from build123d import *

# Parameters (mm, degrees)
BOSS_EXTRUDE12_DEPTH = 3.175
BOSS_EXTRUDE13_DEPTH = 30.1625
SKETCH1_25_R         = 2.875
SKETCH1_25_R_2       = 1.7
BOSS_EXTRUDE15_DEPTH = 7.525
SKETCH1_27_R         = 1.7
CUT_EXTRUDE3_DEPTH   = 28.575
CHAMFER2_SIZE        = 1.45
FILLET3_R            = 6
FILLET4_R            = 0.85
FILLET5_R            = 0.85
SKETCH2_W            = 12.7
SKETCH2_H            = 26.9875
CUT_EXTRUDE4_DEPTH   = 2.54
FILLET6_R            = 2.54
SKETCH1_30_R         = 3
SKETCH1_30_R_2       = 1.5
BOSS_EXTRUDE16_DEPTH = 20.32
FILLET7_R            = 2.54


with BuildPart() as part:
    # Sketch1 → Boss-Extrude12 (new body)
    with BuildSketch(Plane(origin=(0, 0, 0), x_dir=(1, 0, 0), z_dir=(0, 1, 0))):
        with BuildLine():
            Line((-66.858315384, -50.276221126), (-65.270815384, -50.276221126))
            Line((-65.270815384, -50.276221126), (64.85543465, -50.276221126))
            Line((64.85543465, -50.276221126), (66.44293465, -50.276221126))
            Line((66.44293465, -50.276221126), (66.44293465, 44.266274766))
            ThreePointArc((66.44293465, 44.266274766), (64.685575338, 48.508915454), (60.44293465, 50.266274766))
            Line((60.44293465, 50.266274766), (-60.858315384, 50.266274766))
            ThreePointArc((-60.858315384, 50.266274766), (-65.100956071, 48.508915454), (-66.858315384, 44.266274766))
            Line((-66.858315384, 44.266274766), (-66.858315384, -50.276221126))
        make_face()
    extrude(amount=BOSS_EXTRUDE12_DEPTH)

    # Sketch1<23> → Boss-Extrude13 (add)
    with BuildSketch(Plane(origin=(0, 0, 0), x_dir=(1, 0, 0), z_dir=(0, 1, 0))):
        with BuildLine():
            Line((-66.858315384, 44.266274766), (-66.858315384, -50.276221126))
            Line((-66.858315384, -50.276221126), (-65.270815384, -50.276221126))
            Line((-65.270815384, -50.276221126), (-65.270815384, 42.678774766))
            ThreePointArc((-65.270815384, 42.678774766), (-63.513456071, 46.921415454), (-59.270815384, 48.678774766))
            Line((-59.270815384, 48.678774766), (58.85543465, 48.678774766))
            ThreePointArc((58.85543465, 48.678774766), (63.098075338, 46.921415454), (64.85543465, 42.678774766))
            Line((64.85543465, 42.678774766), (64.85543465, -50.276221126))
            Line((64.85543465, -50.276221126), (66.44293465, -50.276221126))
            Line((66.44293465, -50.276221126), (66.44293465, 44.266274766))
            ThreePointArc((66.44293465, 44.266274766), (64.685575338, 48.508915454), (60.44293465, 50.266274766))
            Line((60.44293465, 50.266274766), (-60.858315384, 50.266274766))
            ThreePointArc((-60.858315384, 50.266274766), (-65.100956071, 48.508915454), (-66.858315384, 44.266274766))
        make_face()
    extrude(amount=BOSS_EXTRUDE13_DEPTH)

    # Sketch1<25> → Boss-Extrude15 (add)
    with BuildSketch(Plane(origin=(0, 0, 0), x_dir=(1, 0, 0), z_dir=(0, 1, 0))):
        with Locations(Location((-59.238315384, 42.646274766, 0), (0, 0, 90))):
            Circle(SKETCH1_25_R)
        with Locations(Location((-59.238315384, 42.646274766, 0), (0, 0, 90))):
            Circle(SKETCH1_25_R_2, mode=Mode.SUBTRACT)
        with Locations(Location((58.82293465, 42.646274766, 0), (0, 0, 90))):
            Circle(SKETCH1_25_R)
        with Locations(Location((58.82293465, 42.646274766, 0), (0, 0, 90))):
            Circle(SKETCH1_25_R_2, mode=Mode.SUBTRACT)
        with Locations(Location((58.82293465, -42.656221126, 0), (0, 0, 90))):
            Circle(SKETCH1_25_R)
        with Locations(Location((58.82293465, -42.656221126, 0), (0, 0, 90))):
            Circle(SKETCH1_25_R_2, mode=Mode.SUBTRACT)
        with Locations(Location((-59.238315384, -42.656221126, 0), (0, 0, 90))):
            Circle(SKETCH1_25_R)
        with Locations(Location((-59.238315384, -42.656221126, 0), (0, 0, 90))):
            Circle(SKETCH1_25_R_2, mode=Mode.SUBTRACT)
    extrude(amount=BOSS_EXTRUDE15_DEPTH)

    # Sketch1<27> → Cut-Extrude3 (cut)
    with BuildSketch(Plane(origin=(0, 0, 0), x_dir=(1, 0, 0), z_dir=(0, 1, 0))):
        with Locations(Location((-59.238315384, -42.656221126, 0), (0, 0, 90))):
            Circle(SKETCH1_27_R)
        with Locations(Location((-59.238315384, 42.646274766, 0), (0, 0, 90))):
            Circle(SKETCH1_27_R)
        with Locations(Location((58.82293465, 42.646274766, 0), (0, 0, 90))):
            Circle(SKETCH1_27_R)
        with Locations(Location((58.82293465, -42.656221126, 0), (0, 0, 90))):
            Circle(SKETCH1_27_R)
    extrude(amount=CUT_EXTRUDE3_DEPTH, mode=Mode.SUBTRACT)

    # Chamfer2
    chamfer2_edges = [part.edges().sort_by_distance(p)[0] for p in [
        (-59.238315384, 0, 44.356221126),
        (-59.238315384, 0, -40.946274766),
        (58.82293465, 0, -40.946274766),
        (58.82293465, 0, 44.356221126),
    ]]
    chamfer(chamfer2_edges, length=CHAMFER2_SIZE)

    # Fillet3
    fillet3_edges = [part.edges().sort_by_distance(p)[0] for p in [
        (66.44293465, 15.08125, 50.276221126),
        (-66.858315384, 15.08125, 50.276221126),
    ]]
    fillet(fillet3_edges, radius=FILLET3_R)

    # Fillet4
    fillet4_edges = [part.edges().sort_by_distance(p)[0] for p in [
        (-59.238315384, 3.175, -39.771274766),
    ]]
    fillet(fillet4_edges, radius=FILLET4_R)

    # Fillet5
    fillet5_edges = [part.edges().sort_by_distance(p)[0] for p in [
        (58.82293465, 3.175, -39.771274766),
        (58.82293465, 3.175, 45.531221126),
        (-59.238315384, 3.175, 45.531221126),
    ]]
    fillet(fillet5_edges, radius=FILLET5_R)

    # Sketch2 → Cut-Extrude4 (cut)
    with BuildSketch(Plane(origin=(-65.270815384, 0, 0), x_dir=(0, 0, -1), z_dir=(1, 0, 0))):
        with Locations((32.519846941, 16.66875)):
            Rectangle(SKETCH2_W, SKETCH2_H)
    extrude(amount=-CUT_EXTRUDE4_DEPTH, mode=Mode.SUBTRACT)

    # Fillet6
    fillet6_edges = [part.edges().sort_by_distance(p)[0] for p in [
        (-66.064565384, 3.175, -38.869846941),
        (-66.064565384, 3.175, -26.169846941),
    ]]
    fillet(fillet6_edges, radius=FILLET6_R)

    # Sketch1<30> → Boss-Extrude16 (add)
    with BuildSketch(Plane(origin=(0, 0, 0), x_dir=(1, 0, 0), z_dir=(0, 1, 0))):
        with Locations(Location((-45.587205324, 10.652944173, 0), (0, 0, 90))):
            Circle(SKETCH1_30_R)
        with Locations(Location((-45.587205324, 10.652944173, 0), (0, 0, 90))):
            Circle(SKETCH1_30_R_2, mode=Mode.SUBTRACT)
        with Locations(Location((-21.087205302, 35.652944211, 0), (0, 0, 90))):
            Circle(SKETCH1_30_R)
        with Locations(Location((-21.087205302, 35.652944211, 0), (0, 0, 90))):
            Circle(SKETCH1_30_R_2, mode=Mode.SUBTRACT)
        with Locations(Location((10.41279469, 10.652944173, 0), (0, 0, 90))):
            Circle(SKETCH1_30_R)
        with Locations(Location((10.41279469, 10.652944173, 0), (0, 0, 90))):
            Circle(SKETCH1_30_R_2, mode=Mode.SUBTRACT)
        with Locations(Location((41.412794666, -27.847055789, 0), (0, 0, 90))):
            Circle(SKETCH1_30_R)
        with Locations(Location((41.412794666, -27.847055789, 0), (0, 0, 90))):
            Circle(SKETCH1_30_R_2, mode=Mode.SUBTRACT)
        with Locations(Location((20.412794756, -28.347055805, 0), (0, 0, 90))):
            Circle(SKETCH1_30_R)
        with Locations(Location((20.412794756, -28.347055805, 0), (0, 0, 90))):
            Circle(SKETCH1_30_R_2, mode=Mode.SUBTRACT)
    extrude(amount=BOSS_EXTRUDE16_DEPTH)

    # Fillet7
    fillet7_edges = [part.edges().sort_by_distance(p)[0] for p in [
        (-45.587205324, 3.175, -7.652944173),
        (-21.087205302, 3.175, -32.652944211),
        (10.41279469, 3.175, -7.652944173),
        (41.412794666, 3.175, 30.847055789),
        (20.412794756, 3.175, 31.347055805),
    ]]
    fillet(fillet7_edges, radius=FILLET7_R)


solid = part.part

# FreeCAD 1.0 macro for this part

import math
import FreeCAD as App
import Part
import Sketcher
Q = App.Units.Quantity


def edges_at(feature, points):
    """Names of the edges that pass closest to the given points."""
    edges = feature.Shape.Edges
    near = lambda p: min(range(len(edges)), key=lambda i: edges[i].distToShape(Part.Vertex(*p))[0])
    return sorted({f"Edge{near(p) + 1}" for p in points})

doc = App.newDocument("Part")
body = doc.addObject("PartDesign::Body", "Body")

sketch1 = body.newObject("Sketcher::SketchObject", "Sketch")
sketch1.AttachmentSupport = (doc.getObject("XZ_Plane"), [""])
sketch1.MapMode = "FlatFace"
sketch1.addGeometry([
    Part.LineSegment(App.Vector(-67, 50, 0), App.Vector(66, 50, 0)),
    Part.LineSegment(App.Vector(66, 50, 0), App.Vector(66, -44, 0)),
    Part.ArcOfCircle(Part.Circle(App.Vector(60, -44, 0), App.Vector(0, 0, 1), 6), math.radians(-90), math.radians(0)),
    Part.LineSegment(App.Vector(60, -50, 0), App.Vector(-61, -50, 0)),
    Part.ArcOfCircle(Part.Circle(App.Vector(-61, -44, 0), App.Vector(0, 0, 1), 6), math.radians(180), math.radians(270)),
    Part.LineSegment(App.Vector(-67, -44, 0), App.Vector(-67, 50, 0)),
], False)
sketch1.addConstraint([
    Sketcher.Constraint("Coincident", 0, 2, 1, 1),
    Sketcher.Constraint("Tangent", 1, 2, 2, 2),
    Sketcher.Constraint("Tangent", 2, 1, 3, 1),
    Sketcher.Constraint("Tangent", 3, 2, 4, 2),
    Sketcher.Constraint("Tangent", 4, 1, 5, 1),
    Sketcher.Constraint("Coincident", 5, 2, 0, 1),
    Sketcher.Constraint("Horizontal", 0),
    Sketcher.Constraint("Vertical", 1),
    Sketcher.Constraint("Horizontal", 3),
    Sketcher.Constraint("Vertical", 5),
    Sketcher.Constraint("Equal", 2, 4),
    Sketcher.Constraint("Radius", 2, Q("6 mm")),
    Sketcher.Constraint("DistanceX", 0, 1, 0, 2, Q("133.30125 mm")),
    Sketcher.Constraint("DistanceY", 1, 2, 1, 1, Q("94.542496 mm")),
    Sketcher.Constraint("DistanceY", -1, 1, 0, 2, Q("50.276221 mm")),
    Sketcher.Constraint("DistanceX", -1, 1, 2, 3, Q("60.442935 mm")),
])
pad1 = body.newObject("PartDesign::Pad", "Pad")
pad1.Profile = sketch1
pad1.Length = Q("0.125 in")
pad1.Reversed = True

sketch2 = body.newObject("Sketcher::SketchObject", "Sketch001")
sketch2.AttachmentSupport = (doc.getObject("XZ_Plane"), [""])
sketch2.MapMode = "FlatFace"
sketch2.addGeometry([
    Part.LineSegment(App.Vector(-66.9, -44.3, 0), App.Vector(-66.9, 50.3, 0)),
    Part.LineSegment(App.Vector(-66.9, 50.3, 0), App.Vector(-65.3, 50.3, 0)),
    Part.LineSegment(App.Vector(-65.3, 50.3, 0), App.Vector(-65.3, -42.7, 0)),
    Part.ArcOfCircle(Part.Circle(App.Vector(-59.3, -42.7, 0), App.Vector(0, 0, 1), 6), math.radians(180), math.radians(270)),
    Part.LineSegment(App.Vector(-59.3, -48.7, 0), App.Vector(58.9, -48.7, 0)),
    Part.ArcOfCircle(Part.Circle(App.Vector(58.9, -42.7, 0), App.Vector(0, 0, 1), 6), math.radians(-90), math.radians(0)),
    Part.LineSegment(App.Vector(64.9, -42.7, 0), App.Vector(64.9, 50.3, 0)),
    Part.LineSegment(App.Vector(64.9, 50.3, 0), App.Vector(66.4, 50.3, 0)),
    Part.LineSegment(App.Vector(66.4, 50.3, 0), App.Vector(66.4, -44.3, 0)),
    Part.ArcOfCircle(Part.Circle(App.Vector(60.4, -44.3, 0), App.Vector(0, 0, 1), 6), math.radians(-90), math.radians(0)),
    Part.LineSegment(App.Vector(60.4, -50.3, 0), App.Vector(-60.9, -50.3, 0)),
    Part.ArcOfCircle(Part.Circle(App.Vector(-60.9, -44.3, 0), App.Vector(0, 0, 1), 6), math.radians(180), math.radians(270)),
], False)
sketch2.addConstraint([
    Sketcher.Constraint("Coincident", 0, 2, 1, 1),
    Sketcher.Constraint("Coincident", 1, 2, 2, 1),
    Sketcher.Constraint("Tangent", 2, 2, 3, 1),
    Sketcher.Constraint("Tangent", 3, 2, 4, 1),
    Sketcher.Constraint("Tangent", 4, 2, 5, 1),
    Sketcher.Constraint("Tangent", 5, 2, 6, 1),
    Sketcher.Constraint("Coincident", 6, 2, 7, 1),
    Sketcher.Constraint("Coincident", 7, 2, 8, 1),
    Sketcher.Constraint("Tangent", 8, 2, 9, 2),
    Sketcher.Constraint("Tangent", 9, 1, 10, 1),
    Sketcher.Constraint("Tangent", 10, 2, 11, 2),
    Sketcher.Constraint("Tangent", 11, 1, 0, 1),
    Sketcher.Constraint("Vertical", 0),
    Sketcher.Constraint("Horizontal", 1),
    Sketcher.Constraint("Vertical", 2),
    Sketcher.Constraint("Horizontal", 4),
    Sketcher.Constraint("Vertical", 6),
    Sketcher.Constraint("Horizontal", 7),
    Sketcher.Constraint("Vertical", 8),
    Sketcher.Constraint("Horizontal", 10),
    Sketcher.Constraint("Equal", 3, 5),
    Sketcher.Constraint("Equal", 5, 9),
    Sketcher.Constraint("Equal", 9, 11),
    Sketcher.Constraint("Horizontal", 1, 2, 6, 2),
    Sketcher.Constraint("Equal", 1, 7),
    Sketcher.Constraint("DistanceX", 1, 1, 1, 2, Q("0.0625 in")),
    Sketcher.Constraint("Radius", 3, Q("6 mm")),
    Sketcher.Constraint("DistanceY", 9, 3, 5, 3, Q("0.0625 in")),
    Sketcher.Constraint("DistanceX", 4, 1, 4, 2, Q("118.12625 mm")),
    Sketcher.Constraint("DistanceY", 0, 1, 0, 2, Q("94.542496 mm")),
    Sketcher.Constraint("DistanceY", -1, 1, 0, 2, Q("50.276221 mm")),
    Sketcher.Constraint("DistanceX", 3, 3, -1, 1, Q("59.270815 mm")),
])
pad2 = body.newObject("PartDesign::Pad", "Pad001")
pad2.Profile = sketch2
pad2.Length = Q("1.1875 in")
pad2.Reversed = True

sketch3 = body.newObject("Sketcher::SketchObject", "Sketch002")
sketch3.AttachmentSupport = (doc.getObject("XZ_Plane"), [""])
sketch3.MapMode = "FlatFace"
sketch3.addGeometry([
    Part.Circle(App.Vector(-59.2, -42.6, 0), App.Vector(0, 0, 1), 2.9),
    Part.Circle(App.Vector(-59.2, -42.6, 0), App.Vector(0, 0, 1), 1.7),
    Part.Circle(App.Vector(58.8, -42.6, 0), App.Vector(0, 0, 1), 2.9),
    Part.Circle(App.Vector(58.8, -42.6, 0), App.Vector(0, 0, 1), 1.7),
    Part.Circle(App.Vector(58.8, 42.7, 0), App.Vector(0, 0, 1), 2.9),
    Part.Circle(App.Vector(58.8, 42.7, 0), App.Vector(0, 0, 1), 1.7),
    Part.Circle(App.Vector(-59.2, 42.7, 0), App.Vector(0, 0, 1), 2.9),
    Part.Circle(App.Vector(-59.2, 42.7, 0), App.Vector(0, 0, 1), 1.7),
], False)
sketch3.addConstraint([
    Sketcher.Constraint("Coincident", 1, 3, 0, 3),
    Sketcher.Constraint("Coincident", 3, 3, 2, 3),
    Sketcher.Constraint("Coincident", 5, 3, 4, 3),
    Sketcher.Constraint("Coincident", 7, 3, 6, 3),
    Sketcher.Constraint("Equal", 0, 2),
    Sketcher.Constraint("Equal", 1, 3),
    Sketcher.Constraint("Equal", 2, 4),
    Sketcher.Constraint("Equal", 3, 5),
    Sketcher.Constraint("Equal", 4, 6),
    Sketcher.Constraint("Equal", 5, 7),
    Sketcher.Constraint("Horizontal", 1, 3, 2, 3),
    Sketcher.Constraint("Horizontal", 5, 3, 6, 3),
    Sketcher.Constraint("Vertical", 3, 3, 4, 3),
    Sketcher.Constraint("Vertical", 1, 3, 6, 3),
    Sketcher.Constraint("Diameter", 0, Q("5.75 mm")),
    Sketcher.Constraint("Diameter", 1, Q("3.4 mm")),
    Sketcher.Constraint("DistanceY", -1, 1, 4, 3, Q("42.656221 mm")),
    Sketcher.Constraint("DistanceX", 0, 3, 2, 3, Q("118.06125 mm")),
    Sketcher.Constraint("DistanceX", 0, 3, -1, 1, Q("59.238315 mm")),
    Sketcher.Constraint("DistanceY", 0, 3, -1, 1, Q("42.646275 mm")),
])
pad3 = body.newObject("PartDesign::Pad", "Pad002")
pad3.Profile = sketch3
pad3.Length = 7.525
pad3.Reversed = True

sketch4 = body.newObject("Sketcher::SketchObject", "Sketch003")
sketch4.AttachmentSupport = (doc.getObject("XZ_Plane"), [""])
sketch4.MapMode = "FlatFace"
sketch4.addGeometry([
    Part.Circle(App.Vector(-59.2, 42.7, 0), App.Vector(0, 0, 1), 1.7),
    Part.Circle(App.Vector(-59.2, -42.6, 0), App.Vector(0, 0, 1), 1.7),
    Part.Circle(App.Vector(58.8, -42.6, 0), App.Vector(0, 0, 1), 1.7),
    Part.Circle(App.Vector(58.8, 42.7, 0), App.Vector(0, 0, 1), 1.7),
], False)
sketch4.addConstraint([
    Sketcher.Constraint("Equal", 0, 1),
    Sketcher.Constraint("Equal", 1, 2),
    Sketcher.Constraint("Equal", 2, 3),
    Sketcher.Constraint("Horizontal", 1, 3, 2, 3),
    Sketcher.Constraint("Horizontal", 0, 3, 3, 3),
    Sketcher.Constraint("Vertical", 0, 3, 1, 3),
    Sketcher.Constraint("Vertical", 2, 3, 3, 3),
    Sketcher.Constraint("Diameter", 0, Q("3.4 mm")),
    Sketcher.Constraint("DistanceY", -1, 1, 0, 3, Q("42.656221 mm")),
    Sketcher.Constraint("DistanceX", 1, 3, 2, 3, Q("118.06125 mm")),
    Sketcher.Constraint("DistanceX", 0, 3, -1, 1, Q("59.238315 mm")),
    Sketcher.Constraint("DistanceY", 1, 3, -1, 1, Q("42.646275 mm")),
])
pocket1 = body.newObject("PartDesign::Pocket", "Pocket")
pocket1.Profile = sketch4
pocket1.Length = Q("1.125 in")
doc.recompute()

chamfer = body.newObject("PartDesign::Chamfer", "Chamfer")
chamfer.Base = (pocket1, edges_at(pocket1, [
    (-59.238, 0, 44.356),
    (-59.238, 0, -40.946),
    (58.823, 0, -40.946),
    (58.823, 0, 44.356),
]))
chamfer.Size = 1.45
doc.recompute()

fillet = body.newObject("PartDesign::Fillet", "Fillet")
fillet.Base = (chamfer, edges_at(chamfer, [(66.443, 15.081, 50.276), (-66.858, 15.081, 50.276)]))
fillet.Radius = 6
doc.recompute()

fillet2 = body.newObject("PartDesign::Fillet", "Fillet001")
fillet2.Base = (fillet, edges_at(fillet, [(-59.238, 3.175, -39.771)]))
fillet2.Radius = 0.85
doc.recompute()

fillet3 = body.newObject("PartDesign::Fillet", "Fillet002")
fillet3.Base = (fillet2, edges_at(fillet2, [(58.823, 3.175, -39.771), (58.823, 3.175, 45.531), (-59.238, 3.175, 45.531)]))
fillet3.Radius = 0.85

sketch5 = body.newObject("Sketcher::SketchObject", "Sketch004")
sketch5.AttachmentSupport = (doc.getObject("YZ_Plane"), [""])
sketch5.MapMode = "FlatFace"
sketch5.AttachmentOffset = App.Placement(App.Vector(0, 0, -65.270815), App.Rotation())
sketch5.addGeometry([
    Part.LineSegment(App.Vector(30, -26, 0), App.Vector(3, -26, 0)),
    Part.LineSegment(App.Vector(3, -26, 0), App.Vector(3, -39, 0)),
    Part.LineSegment(App.Vector(3, -39, 0), App.Vector(30, -39, 0)),
    Part.LineSegment(App.Vector(30, -39, 0), App.Vector(30, -26, 0)),
], False)
sketch5.addConstraint([
    Sketcher.Constraint("Coincident", 0, 2, 1, 1),
    Sketcher.Constraint("Coincident", 1, 2, 2, 1),
    Sketcher.Constraint("Coincident", 2, 2, 3, 1),
    Sketcher.Constraint("Coincident", 3, 2, 0, 1),
    Sketcher.Constraint("Horizontal", 0),
    Sketcher.Constraint("Vertical", 1),
    Sketcher.Constraint("Horizontal", 2),
    Sketcher.Constraint("Vertical", 3),
    Sketcher.Constraint("DistanceY", 1, 2, 1, 1, Q("0.5 in")),
    Sketcher.Constraint("DistanceX", 0, 2, 0, 1, Q("1.0625 in")),
    Sketcher.Constraint("DistanceX", -1, 1, 0, 2, Q("0.125 in")),
    Sketcher.Constraint("DistanceY", 0, 2, -1, 1, Q("26.169847 mm")),
])
pocket2 = body.newObject("PartDesign::Pocket", "Pocket001")
pocket2.Profile = sketch5
pocket2.Length = Q("0.1 in")
doc.recompute()

fillet4 = body.newObject("PartDesign::Fillet", "Fillet003")
fillet4.Base = (pocket2, edges_at(pocket2, [(-66.065, 3.175, -38.87), (-66.065, 3.175, -26.17)]))
fillet4.Radius = Q("0.1 in")

sketch6 = body.newObject("Sketcher::SketchObject", "Sketch005")
sketch6.AttachmentSupport = (doc.getObject("XZ_Plane"), [""])
sketch6.MapMode = "FlatFace"
sketch6.addGeometry([
    Part.Circle(App.Vector(-45.6, -10.7, 0), App.Vector(0, 0, 1), 3),
    Part.Circle(App.Vector(-45.6, -10.7, 0), App.Vector(0, 0, 1), 1.5),
    Part.Circle(App.Vector(-21.1, -35.7, 0), App.Vector(0, 0, 1), 3),
    Part.Circle(App.Vector(-21.1, -35.7, 0), App.Vector(0, 0, 1), 1.5),
    Part.Circle(App.Vector(10.4, -10.7, 0), App.Vector(0, 0, 1), 3),
    Part.Circle(App.Vector(10.4, -10.7, 0), App.Vector(0, 0, 1), 1.5),
    Part.Circle(App.Vector(41.4, 27.8, 0), App.Vector(0, 0, 1), 3),
    Part.Circle(App.Vector(41.4, 27.8, 0), App.Vector(0, 0, 1), 1.5),
    Part.Circle(App.Vector(20.4, 28.3, 0), App.Vector(0, 0, 1), 3),
    Part.Circle(App.Vector(20.4, 28.3, 0), App.Vector(0, 0, 1), 1.5),
], False)
sketch6.addConstraint([
    Sketcher.Constraint("Coincident", 1, 3, 0, 3),
    Sketcher.Constraint("Coincident", 3, 3, 2, 3),
    Sketcher.Constraint("Coincident", 5, 3, 4, 3),
    Sketcher.Constraint("Coincident", 7, 3, 6, 3),
    Sketcher.Constraint("Coincident", 9, 3, 8, 3),
    Sketcher.Constraint("Equal", 0, 2),
    Sketcher.Constraint("Equal", 1, 3),
    Sketcher.Constraint("Equal", 2, 4),
    Sketcher.Constraint("Equal", 3, 5),
    Sketcher.Constraint("Equal", 4, 6),
    Sketcher.Constraint("Equal", 5, 7),
    Sketcher.Constraint("Equal", 6, 8),
    Sketcher.Constraint("Equal", 7, 9),
    Sketcher.Constraint("Horizontal", 1, 3, 4, 3),
    Sketcher.Constraint("DistanceY", 2, 3, 6, 3, Q("2.5 in")),
    Sketcher.Constraint("Diameter", 0, Q("6 mm")),
    Sketcher.Constraint("Diameter", 1, Q("3 mm")),
    Sketcher.Constraint("DistanceX", 0, 3, 2, 3, Q("24.5 mm")),
    Sketcher.Constraint("DistanceY", 2, 3, 0, 3, Q("25 mm")),
    Sketcher.Constraint("DistanceX", 2, 3, 4, 3, Q("31.5 mm")),
    Sketcher.Constraint("DistanceX", 4, 3, 6, 3, Q("31 mm")),
    Sketcher.Constraint("DistanceX", 8, 3, 6, 3, Q("21 mm")),
    Sketcher.Constraint("DistanceY", 6, 3, 8, 3, Q("0.5 mm")),
    Sketcher.Constraint("DistanceX", 0, 3, -1, 1, Q("45.587205 mm")),
    Sketcher.Constraint("DistanceY", 0, 3, -1, 1, Q("10.652944 mm")),
])
pad4 = body.newObject("PartDesign::Pad", "Pad003")
pad4.Profile = sketch6
pad4.Length = Q("0.8 in")
pad4.Reversed = True
doc.recompute()

fillet5 = body.newObject("PartDesign::Fillet", "Fillet004")
fillet5.Base = (pad4, edges_at(pad4, [
    (-45.587, 3.175, -7.653),
    (-21.087, 3.175, -32.653),
    (10.413, 3.175, -7.653),
    (41.413, 3.175, 30.847),
    (20.413, 3.175, 31.347),
]))
fillet5.Radius = Q("0.1 in")

doc.recompute()
